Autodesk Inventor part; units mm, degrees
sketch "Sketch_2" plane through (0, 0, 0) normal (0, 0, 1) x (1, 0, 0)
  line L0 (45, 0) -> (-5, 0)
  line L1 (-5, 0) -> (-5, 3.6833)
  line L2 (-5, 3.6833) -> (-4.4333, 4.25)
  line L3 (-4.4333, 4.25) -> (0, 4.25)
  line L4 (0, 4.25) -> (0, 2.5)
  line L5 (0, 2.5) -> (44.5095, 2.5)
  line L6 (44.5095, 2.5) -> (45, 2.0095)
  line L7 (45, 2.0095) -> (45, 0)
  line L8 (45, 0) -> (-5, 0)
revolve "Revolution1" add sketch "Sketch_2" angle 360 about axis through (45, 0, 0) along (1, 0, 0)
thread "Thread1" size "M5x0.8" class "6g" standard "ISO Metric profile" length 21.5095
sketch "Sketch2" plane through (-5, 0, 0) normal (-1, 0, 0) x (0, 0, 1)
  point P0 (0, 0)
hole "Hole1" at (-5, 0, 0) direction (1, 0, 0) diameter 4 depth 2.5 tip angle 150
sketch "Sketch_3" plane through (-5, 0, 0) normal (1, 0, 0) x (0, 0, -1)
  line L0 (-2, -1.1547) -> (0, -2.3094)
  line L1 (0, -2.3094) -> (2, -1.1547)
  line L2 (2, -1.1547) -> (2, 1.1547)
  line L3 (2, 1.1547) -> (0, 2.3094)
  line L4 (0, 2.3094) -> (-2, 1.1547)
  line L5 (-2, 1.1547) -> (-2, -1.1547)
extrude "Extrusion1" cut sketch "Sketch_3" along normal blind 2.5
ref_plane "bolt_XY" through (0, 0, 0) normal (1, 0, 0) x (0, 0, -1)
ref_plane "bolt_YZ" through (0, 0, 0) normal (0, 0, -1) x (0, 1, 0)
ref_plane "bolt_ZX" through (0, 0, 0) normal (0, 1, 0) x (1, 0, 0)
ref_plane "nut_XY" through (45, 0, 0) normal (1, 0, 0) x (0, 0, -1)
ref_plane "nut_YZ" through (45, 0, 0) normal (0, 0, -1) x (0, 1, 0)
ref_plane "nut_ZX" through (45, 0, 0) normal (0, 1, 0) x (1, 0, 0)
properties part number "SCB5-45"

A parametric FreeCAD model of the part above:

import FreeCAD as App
import Part
import Sketcher

V = App.Vector
Q = App.Units.Quantity

doc = App.newDocument("Part")
body = doc.addObject("PartDesign::Body", "Body")

# Sketch on XY plane
sketch1 = body.newObject("Sketcher::SketchObject", "Sketch")
sketch1.AttachmentSupport = (doc.getObject("XY_Plane"), [""])
sketch1.MapMode = "FlatFace"
sketch1.addGeometry([
    Part.LineSegment(V(-5, 0, 0), V(45, 0, 0)),  # 0
    Part.LineSegment(V(45, 0, 0), V(45, 2.0095, 0)),  # 1
    Part.LineSegment(V(45, 2.0095, 0), V(44.5095, 2.5, 0)),  # 2
    Part.LineSegment(V(44.5095, 2.5, 0), V(0, 2.5, 0)),  # 3
    Part.LineSegment(V(0, 2.5, 0), V(0, 4.25, 0)),  # 4
    Part.LineSegment(V(0, 4.25, 0), V(-4.4333, 4.25, 0)),  # 5
    Part.LineSegment(V(-4.4333, 4.25, 0), V(-5, 3.6833, 0)),  # 6
    Part.LineSegment(V(-5, 3.6833, 0), V(-5, 0, 0)),  # 7
], False)
sketch1.addConstraint([
    Sketcher.Constraint("Coincident", 0, 2, 1, 1),
    Sketcher.Constraint("Coincident", 1, 2, 2, 1),
    Sketcher.Constraint("Coincident", 2, 2, 3, 1),
    Sketcher.Constraint("Coincident", 3, 2, 4, 1),
    Sketcher.Constraint("Coincident", 4, 2, 5, 1),
    Sketcher.Constraint("Coincident", 5, 2, 6, 1),
    Sketcher.Constraint("Coincident", 6, 2, 7, 1),
    Sketcher.Constraint("Coincident", 7, 2, 0, 1),
    Sketcher.Constraint("Horizontal", 0),
    Sketcher.Constraint("Vertical", 1),
    Sketcher.Constraint("Horizontal", 3),
    Sketcher.Constraint("Vertical", 4),
    Sketcher.Constraint("Horizontal", 5),
    Sketcher.Constraint("Vertical", 7),
    Sketcher.Constraint("PointOnObject", 0, 2, -1),
    Sketcher.Constraint("PointOnObject", 3, 2, -2),
    Sketcher.Constraint("Perpendicular", 2, 6),
    Sketcher.Constraint("DistanceX", 0, 1, 0, 2, 50.0),
    Sketcher.Constraint("Angle", 2, Q("135 deg")),
    Sketcher.Constraint("DistanceX", -1, 1, 0, 2, 45.0),
    Sketcher.Constraint("DistanceY", 4, 1, 4, 2, 1.75),
    Sketcher.Constraint("DistanceY", -1, 1, 2, 2, 2.5),
    Sketcher.Constraint("DistanceX", 3, 2, 3, 1, 44.5095),
    Sketcher.Constraint("DistanceX", 5, 2, 5, 1, 4.4333),
])
revolution = body.newObject("PartDesign::Revolution", "Revolution")
revolution.Profile = sketch1
revolution.ReferenceAxis = (sketch1, ["H_Axis"])
revolution.Angle = 360

# Sketch on YZ plane
sketch2 = body.newObject("Sketcher::SketchObject", "Sketch001")
sketch2.AttachmentSupport = (doc.getObject("YZ_Plane"), [""])
sketch2.MapMode = "FlatFace"
sketch2.AttachmentOffset = App.Placement(V(0, 0, -5), App.Rotation())
sketch2.addGeometry(Part.Circle(V(0, 0, 0), V(0, 0, 1), 2), False)
sketch2.addConstraint([
    Sketcher.Constraint("Coincident", 0, 3, -1, 1),
    Sketcher.Constraint("Diameter", 0, 4.0),
])
doc.recompute()
hole = body.newObject("PartDesign::Hole", "Hole")
hole.Profile = sketch2
hole.ThreadType = "None"
hole.Diameter = 4
hole.DepthType = "Dimension"
hole.Depth = 2.5
hole.DrillPoint = "Angled"
hole.DrillPointAngle = 150
hole.Reversed = True

# Sketch on YZ plane
sketch3 = body.newObject("Sketcher::SketchObject", "Sketch002")
sketch3.AttachmentSupport = (doc.getObject("YZ_Plane"), [""])
sketch3.MapMode = "FlatFace"
sketch3.AttachmentOffset = App.Placement(V(0, 0, -5), App.Rotation())
sketch3.addGeometry([
    Part.LineSegment(V(1.1547, 2, 0), V(-1.1547, 2, 0)),  # 0
    Part.LineSegment(V(-1.1547, 2, 0), V(-2.3094, 0, 0)),  # 1
    Part.LineSegment(V(-2.3094, 0, 0), V(-1.1547, -2, 0)),  # 2
    Part.LineSegment(V(-1.1547, -2, 0), V(1.1547, -2, 0)),  # 3
    Part.LineSegment(V(1.1547, -2, 0), V(2.3094, 0, 0)),  # 4
    Part.LineSegment(V(2.3094, 0, 0), V(1.1547, 2, 0)),  # 5
], False)
sketch3.addConstraint([
    Sketcher.Constraint("Coincident", 0, 2, 1, 1),
    Sketcher.Constraint("Coincident", 1, 2, 2, 1),
    Sketcher.Constraint("Coincident", 2, 2, 3, 1),
    Sketcher.Constraint("Coincident", 3, 2, 4, 1),
    Sketcher.Constraint("Coincident", 4, 2, 5, 1),
    Sketcher.Constraint("Coincident", 5, 2, 0, 1),
    Sketcher.Constraint("Horizontal", 0),
    Sketcher.Constraint("Horizontal", 3),
    Sketcher.Constraint("Symmetric", 0, 2, 3, 2, -1, 1),
    Sketcher.Constraint("Symmetric", 1, 2, 4, 2, -1, 1),
    Sketcher.Constraint("PointOnObject", 1, 2, -1),
    Sketcher.Constraint("Parallel", 2, 5),
    Sketcher.Constraint("Vertical", 0, 2, 2, 2),
    Sketcher.Constraint("Angle", 1, Q("-120 deg")),
    Sketcher.Constraint("DistanceY", -1, 1, 0, 2, 2.0),
    Sketcher.Constraint("DistanceX", 0, 2, 0, 1, 2.3094),
])
pocket1 = body.newObject("PartDesign::Pocket", "Pocket")
pocket1.Profile = sketch3
pocket1.Length = 2.5
pocket1.Reversed = True

doc.recompute()
